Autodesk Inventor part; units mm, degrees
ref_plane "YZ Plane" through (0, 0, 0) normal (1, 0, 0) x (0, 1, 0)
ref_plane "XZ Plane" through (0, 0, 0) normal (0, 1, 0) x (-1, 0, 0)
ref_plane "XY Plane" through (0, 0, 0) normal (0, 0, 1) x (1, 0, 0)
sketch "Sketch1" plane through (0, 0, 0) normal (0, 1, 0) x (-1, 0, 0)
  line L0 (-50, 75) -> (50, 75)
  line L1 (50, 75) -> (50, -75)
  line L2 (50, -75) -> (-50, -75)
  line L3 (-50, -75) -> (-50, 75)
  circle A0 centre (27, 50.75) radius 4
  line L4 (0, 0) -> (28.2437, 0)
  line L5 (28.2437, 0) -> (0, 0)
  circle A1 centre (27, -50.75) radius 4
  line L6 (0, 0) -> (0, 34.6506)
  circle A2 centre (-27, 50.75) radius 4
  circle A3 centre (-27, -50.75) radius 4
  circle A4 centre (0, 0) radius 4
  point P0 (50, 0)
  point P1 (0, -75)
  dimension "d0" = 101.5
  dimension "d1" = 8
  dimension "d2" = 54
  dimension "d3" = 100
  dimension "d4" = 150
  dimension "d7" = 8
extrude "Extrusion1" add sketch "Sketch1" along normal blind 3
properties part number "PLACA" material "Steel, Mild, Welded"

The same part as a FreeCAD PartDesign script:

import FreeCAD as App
import Part
import Sketcher

V = App.Vector


def add_polygon(sketch, points):
    """Adds a closed chain of lines whose ends are joined by coincident constraints."""
    first, n = sketch.GeometryCount, len(points)
    for a, b in zip(points, points[1:] + points[:1]):
        sketch.addGeometry(Part.LineSegment(App.Vector(*a, 0), App.Vector(*b, 0)), False)
    for i in range(n):
        sketch.addConstraint(Sketcher.Constraint("Coincident", first + i, 2, first + (i + 1) % n, 1))

doc = App.newDocument("Part")
body = doc.addObject("PartDesign::Body", "Body")

# Sketch on XZ plane
sketch1 = body.newObject("Sketcher::SketchObject", "Sketch")
sketch1.AttachmentSupport = (doc.getObject("XZ_Plane"), [""])
sketch1.MapMode = "FlatFace"
add_polygon(sketch1, [(-50, 75), (50, 75), (50, -75), (-50, -75)])  # lines 0-3
sketch1.addGeometry(Part.Circle(V(27, -50.75, 0), V(0, 0, 1), 4), False)  # 4
sketch1.addGeometry(Part.Circle(V(-27, -50.75, 0), V(0, 0, 1), 4), False)  # 5
sketch1.addGeometry(Part.Circle(V(27, 50.75, 0), V(0, 0, 1), 4), False)  # 6
sketch1.addGeometry(Part.Circle(V(0, 0, 0), V(0, 0, 1), 4), False)  # 7
sketch1.addGeometry(Part.Circle(V(-27, 50.75, 0), V(0, 0, 1), 4), False)  # 8
sketch1.addConstraint([
    Sketcher.Constraint("Horizontal", 0),
    Sketcher.Constraint("Vertical", 1),
    Sketcher.Constraint("Horizontal", 2),
    Sketcher.Constraint("Vertical", 3),
    Sketcher.Constraint("Coincident", 7, 3, -1, 1),
    Sketcher.Constraint("Equal", 4, 5),
    Sketcher.Constraint("Equal", 5, 6),
    Sketcher.Constraint("Equal", 6, 7),
    Sketcher.Constraint("Equal", 7, 8),
    Sketcher.Constraint("Symmetric", 5, 3, 6, 3, -1, 1),
    Sketcher.Constraint("Symmetric", 4, 3, 8, 3, -1, 1),
    Sketcher.Constraint("Symmetric", 0, 2, 2, 2, -1, 1),
    Sketcher.Constraint("Symmetric", 4, 3, 5, 3, -2),
    Sketcher.Constraint("Diameter", 4, 8.0),
    Sketcher.Constraint("DistanceX", 0, 1, 0, 2, 100.0),
    Sketcher.Constraint("DistanceY", 1, 2, 1, 1, 150.0),
    Sketcher.Constraint("DistanceX", 5, 3, 4, 3, 54.0),
    Sketcher.Constraint("DistanceY", 4, 3, 6, 3, 101.5),
])
pad1 = body.newObject("PartDesign::Pad", "Pad")
pad1.Profile = sketch1
pad1.Length = 3
pad1.Reversed = True

doc.recompute()
